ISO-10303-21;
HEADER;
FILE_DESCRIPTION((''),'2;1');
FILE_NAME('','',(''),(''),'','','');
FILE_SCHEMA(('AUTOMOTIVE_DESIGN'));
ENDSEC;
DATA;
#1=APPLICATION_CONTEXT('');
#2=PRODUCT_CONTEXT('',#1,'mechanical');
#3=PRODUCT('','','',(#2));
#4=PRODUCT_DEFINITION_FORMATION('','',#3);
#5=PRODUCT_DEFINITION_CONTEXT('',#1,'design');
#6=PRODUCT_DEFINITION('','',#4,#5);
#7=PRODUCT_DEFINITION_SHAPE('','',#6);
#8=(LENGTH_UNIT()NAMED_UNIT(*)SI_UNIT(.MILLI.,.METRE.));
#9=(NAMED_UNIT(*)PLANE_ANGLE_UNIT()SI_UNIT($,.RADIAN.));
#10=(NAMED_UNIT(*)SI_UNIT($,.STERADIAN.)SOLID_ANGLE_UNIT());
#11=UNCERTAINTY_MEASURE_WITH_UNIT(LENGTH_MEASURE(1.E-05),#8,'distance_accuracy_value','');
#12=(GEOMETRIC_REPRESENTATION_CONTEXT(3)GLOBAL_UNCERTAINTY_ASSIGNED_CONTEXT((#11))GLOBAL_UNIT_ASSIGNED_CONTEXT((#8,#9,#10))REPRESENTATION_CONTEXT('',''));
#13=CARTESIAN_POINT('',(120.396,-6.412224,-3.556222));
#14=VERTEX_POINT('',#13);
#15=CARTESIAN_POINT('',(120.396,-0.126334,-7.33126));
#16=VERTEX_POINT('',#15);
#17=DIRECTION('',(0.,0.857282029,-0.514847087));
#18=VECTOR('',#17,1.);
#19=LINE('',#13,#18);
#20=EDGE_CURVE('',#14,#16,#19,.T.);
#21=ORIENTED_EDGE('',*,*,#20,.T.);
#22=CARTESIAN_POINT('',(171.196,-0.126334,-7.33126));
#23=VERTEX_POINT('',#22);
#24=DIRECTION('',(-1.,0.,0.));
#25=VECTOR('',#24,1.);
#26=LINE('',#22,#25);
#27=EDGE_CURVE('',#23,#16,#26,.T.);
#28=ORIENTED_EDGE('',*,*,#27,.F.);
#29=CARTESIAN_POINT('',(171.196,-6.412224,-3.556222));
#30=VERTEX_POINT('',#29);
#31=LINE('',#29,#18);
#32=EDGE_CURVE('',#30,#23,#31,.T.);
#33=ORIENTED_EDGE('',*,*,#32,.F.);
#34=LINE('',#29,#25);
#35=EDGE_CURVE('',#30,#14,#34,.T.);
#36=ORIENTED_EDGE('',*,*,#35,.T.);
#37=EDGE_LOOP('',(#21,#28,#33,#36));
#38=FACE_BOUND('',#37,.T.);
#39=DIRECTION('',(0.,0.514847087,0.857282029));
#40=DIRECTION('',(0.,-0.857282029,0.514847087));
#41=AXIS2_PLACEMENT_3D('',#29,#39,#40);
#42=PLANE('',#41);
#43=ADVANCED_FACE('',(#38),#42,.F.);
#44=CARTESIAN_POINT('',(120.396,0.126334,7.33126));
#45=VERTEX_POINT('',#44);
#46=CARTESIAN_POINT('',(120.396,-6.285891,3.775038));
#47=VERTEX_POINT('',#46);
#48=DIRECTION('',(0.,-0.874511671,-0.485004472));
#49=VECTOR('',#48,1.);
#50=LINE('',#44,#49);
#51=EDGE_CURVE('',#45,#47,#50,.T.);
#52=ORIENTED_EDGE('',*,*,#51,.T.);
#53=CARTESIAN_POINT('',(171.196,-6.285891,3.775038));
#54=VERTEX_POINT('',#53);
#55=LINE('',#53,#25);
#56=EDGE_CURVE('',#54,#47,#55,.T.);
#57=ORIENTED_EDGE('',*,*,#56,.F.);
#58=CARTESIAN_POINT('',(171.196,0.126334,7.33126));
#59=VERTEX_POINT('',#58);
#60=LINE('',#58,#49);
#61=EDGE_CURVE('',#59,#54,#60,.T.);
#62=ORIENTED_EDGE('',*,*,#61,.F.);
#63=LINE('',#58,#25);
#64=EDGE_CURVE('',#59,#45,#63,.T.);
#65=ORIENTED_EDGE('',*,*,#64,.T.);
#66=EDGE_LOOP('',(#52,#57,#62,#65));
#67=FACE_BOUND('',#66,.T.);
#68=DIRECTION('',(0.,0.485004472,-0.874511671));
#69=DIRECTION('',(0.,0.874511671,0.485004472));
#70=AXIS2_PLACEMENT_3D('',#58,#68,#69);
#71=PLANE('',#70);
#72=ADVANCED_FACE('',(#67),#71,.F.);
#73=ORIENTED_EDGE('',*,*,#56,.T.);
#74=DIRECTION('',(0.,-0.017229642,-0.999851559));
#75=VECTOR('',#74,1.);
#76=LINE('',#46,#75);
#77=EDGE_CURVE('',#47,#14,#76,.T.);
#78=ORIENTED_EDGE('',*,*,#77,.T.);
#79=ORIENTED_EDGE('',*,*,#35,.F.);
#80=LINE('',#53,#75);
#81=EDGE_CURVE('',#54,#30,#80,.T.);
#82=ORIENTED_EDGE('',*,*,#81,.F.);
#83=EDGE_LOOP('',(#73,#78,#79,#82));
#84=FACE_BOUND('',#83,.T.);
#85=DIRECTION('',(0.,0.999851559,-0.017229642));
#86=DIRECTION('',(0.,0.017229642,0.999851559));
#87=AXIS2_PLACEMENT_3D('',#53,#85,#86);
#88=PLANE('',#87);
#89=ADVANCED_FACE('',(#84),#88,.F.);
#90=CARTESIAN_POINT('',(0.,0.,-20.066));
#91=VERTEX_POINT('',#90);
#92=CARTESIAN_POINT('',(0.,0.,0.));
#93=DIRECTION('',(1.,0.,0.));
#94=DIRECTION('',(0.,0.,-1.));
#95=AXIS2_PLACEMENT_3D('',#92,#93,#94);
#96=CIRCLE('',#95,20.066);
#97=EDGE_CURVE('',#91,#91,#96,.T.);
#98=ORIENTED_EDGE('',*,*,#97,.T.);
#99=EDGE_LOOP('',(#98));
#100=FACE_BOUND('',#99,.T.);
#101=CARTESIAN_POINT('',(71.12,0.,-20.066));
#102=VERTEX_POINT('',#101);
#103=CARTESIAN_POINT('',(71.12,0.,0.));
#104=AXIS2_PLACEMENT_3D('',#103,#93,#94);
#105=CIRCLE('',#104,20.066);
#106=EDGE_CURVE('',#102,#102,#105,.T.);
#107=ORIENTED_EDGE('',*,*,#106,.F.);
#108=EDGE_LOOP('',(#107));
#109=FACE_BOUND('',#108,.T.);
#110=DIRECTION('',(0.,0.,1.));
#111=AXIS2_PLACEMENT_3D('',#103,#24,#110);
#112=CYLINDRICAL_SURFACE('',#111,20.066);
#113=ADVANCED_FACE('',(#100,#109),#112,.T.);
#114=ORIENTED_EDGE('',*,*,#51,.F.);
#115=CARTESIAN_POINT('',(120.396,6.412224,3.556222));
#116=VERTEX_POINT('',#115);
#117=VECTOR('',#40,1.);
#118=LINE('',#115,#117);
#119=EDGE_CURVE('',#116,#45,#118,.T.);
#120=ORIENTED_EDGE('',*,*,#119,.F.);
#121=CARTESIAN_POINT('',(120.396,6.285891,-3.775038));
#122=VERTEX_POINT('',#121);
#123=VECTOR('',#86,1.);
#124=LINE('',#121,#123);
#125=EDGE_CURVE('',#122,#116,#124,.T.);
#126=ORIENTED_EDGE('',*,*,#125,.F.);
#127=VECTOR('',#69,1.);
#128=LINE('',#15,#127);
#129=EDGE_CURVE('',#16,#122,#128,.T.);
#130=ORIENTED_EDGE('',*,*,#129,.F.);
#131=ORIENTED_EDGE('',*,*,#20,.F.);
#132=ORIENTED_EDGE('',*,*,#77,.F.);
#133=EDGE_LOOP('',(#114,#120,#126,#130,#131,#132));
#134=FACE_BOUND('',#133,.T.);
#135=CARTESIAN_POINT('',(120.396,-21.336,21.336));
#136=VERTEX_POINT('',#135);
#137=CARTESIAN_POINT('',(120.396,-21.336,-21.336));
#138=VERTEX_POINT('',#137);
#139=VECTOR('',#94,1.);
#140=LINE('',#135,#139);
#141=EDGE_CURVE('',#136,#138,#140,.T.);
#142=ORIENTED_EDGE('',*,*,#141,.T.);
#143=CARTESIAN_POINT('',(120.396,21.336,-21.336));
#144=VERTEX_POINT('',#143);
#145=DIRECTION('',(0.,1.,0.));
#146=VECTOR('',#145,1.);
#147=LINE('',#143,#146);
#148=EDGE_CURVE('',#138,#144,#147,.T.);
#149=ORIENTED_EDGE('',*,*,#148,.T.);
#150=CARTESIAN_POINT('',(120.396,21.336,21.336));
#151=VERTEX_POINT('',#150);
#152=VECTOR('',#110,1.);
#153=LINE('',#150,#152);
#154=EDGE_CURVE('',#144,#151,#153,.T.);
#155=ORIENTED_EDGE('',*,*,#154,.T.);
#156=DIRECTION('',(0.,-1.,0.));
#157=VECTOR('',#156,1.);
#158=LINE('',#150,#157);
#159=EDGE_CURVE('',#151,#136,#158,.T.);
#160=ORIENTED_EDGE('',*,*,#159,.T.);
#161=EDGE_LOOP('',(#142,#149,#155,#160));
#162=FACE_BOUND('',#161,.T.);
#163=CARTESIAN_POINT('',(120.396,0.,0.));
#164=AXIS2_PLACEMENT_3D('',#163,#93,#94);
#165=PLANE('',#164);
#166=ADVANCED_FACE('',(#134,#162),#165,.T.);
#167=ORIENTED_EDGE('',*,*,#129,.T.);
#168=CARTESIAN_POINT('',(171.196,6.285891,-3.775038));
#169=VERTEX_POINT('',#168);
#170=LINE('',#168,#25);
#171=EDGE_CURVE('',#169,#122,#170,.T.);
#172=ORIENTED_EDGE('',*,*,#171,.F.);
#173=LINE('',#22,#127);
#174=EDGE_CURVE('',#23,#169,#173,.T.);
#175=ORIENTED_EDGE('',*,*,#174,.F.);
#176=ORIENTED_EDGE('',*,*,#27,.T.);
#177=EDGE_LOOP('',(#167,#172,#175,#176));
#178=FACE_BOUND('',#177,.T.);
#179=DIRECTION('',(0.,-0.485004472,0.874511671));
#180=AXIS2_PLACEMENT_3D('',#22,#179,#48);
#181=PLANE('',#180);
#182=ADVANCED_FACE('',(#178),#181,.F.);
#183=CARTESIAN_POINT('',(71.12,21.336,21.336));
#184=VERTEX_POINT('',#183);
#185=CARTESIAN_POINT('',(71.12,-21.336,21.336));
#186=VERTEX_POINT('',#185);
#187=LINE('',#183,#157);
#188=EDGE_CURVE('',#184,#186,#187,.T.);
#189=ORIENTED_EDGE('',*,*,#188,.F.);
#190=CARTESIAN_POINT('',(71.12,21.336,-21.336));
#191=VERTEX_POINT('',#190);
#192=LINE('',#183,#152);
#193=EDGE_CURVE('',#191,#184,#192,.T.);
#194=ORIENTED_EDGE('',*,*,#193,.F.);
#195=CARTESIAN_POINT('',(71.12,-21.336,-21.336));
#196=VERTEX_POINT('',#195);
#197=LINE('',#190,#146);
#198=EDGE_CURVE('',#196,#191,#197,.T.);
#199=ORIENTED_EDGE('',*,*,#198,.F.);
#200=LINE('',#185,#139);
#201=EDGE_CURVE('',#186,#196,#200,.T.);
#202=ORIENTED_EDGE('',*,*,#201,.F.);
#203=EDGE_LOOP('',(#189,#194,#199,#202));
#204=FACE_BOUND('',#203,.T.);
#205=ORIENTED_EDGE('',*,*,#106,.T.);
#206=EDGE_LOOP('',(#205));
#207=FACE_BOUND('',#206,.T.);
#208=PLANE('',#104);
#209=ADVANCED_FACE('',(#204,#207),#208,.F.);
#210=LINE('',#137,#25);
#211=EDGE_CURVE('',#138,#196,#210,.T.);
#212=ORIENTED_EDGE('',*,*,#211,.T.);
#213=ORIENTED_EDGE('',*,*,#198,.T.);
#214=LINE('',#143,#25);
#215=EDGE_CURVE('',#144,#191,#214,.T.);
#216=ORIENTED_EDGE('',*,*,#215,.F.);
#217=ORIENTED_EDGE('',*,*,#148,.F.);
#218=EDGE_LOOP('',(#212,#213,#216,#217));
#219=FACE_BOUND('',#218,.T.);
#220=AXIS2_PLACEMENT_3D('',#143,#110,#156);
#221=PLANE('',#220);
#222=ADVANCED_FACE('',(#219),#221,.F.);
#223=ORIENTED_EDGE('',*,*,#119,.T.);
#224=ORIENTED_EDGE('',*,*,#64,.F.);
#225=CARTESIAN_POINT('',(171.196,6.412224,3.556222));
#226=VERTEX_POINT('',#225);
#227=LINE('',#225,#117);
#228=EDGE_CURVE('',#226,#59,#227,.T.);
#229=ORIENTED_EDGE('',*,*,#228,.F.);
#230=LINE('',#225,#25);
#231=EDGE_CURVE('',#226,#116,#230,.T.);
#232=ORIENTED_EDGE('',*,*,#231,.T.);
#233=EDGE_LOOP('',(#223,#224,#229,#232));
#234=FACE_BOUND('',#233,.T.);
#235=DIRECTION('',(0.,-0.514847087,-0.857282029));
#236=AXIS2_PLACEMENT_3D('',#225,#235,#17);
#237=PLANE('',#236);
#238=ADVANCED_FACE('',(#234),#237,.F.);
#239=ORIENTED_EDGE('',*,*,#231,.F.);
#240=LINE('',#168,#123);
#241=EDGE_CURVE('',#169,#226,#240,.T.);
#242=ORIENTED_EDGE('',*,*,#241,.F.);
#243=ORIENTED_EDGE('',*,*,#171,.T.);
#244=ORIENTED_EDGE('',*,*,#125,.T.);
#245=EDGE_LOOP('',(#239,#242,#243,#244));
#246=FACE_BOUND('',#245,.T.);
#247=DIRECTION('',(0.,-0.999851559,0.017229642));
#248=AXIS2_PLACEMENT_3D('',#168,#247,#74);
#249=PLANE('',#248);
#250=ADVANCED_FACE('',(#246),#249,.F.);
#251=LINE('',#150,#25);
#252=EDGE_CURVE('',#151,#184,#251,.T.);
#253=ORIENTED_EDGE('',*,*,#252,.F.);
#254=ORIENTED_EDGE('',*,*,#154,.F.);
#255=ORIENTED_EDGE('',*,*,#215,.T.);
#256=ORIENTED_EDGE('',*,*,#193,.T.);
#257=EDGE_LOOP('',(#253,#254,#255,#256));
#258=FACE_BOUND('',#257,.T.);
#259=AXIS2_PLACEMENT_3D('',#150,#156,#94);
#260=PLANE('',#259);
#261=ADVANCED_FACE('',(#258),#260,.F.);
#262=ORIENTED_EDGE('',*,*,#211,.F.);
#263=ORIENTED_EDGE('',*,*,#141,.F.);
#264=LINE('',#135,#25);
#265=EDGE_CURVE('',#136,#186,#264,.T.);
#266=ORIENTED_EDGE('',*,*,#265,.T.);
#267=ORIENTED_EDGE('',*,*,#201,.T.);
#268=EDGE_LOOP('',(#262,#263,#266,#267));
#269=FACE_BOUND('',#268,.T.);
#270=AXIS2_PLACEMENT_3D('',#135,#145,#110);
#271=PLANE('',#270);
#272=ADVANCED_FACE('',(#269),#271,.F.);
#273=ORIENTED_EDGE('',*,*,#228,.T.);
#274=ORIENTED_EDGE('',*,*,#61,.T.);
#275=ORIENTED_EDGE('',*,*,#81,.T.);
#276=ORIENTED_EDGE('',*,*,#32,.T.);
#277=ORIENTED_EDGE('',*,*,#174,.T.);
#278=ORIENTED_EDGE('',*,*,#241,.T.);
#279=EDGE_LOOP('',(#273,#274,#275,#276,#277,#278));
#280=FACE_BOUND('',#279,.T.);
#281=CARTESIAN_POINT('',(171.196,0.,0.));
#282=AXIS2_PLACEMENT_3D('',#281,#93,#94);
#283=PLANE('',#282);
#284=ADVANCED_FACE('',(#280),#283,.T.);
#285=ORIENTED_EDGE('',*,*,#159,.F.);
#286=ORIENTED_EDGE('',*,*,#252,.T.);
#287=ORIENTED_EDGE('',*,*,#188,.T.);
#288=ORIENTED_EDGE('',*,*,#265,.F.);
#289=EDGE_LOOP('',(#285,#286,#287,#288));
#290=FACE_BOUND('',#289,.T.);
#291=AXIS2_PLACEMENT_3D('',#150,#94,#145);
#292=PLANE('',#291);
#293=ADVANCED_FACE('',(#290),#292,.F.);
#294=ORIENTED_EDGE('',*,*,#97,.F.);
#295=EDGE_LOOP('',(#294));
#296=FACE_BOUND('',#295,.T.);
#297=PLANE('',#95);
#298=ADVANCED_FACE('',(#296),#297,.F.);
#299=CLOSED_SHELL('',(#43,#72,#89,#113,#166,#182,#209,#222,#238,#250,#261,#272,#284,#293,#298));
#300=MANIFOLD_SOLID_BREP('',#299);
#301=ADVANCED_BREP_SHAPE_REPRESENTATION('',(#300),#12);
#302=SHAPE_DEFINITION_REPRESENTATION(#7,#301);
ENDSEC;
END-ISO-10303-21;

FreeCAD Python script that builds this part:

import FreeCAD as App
import Part
import Sketcher
Q = App.Units.Quantity

doc = App.newDocument("Part")
body = doc.addObject("PartDesign::Body", "Body")

sketch1 = body.newObject("Sketcher::SketchObject", "Sketch")
sketch1.AttachmentSupport = (doc.getObject("YZ_Plane"), [""])
sketch1.MapMode = "FlatFace"
sketch1.addGeometry(Part.Circle(App.Vector(0, 0, 0), App.Vector(0, 0, 1), 20), False)
sketch1.addConstraint([
    Sketcher.Constraint("Coincident", 0, 3, -1, 1),
    Sketcher.Constraint("Diameter", 0, Q("1.58 in")),
])
pad1 = body.newObject("PartDesign::Pad", "Pad")
pad1.Profile = sketch1
pad1.Length = Q("2.8 in")

sketch2 = body.newObject("Sketcher::SketchObject", "Sketch001")
sketch2.AttachmentSupport = (doc.getObject("YZ_Plane"), [""])
sketch2.MapMode = "FlatFace"
sketch2.AttachmentOffset = App.Placement(App.Vector(0, 0, 2.8 * 25.4), App.Rotation())
sketch2.addGeometry([
    Part.LineSegment(App.Vector(21, 21, 0), App.Vector(-21, 21, 0)),
    Part.LineSegment(App.Vector(-21, 21, 0), App.Vector(-21, -21, 0)),
    Part.LineSegment(App.Vector(-21, -21, 0), App.Vector(21, -21, 0)),
    Part.LineSegment(App.Vector(21, -21, 0), App.Vector(21, 21, 0)),
], False)
sketch2.addConstraint([
    Sketcher.Constraint("Coincident", 0, 2, 1, 1),
    Sketcher.Constraint("Coincident", 1, 2, 2, 1),
    Sketcher.Constraint("Coincident", 2, 2, 3, 1),
    Sketcher.Constraint("Coincident", 3, 2, 0, 1),
    Sketcher.Constraint("Horizontal", 0),
    Sketcher.Constraint("Vertical", 1),
    Sketcher.Constraint("Horizontal", 2),
    Sketcher.Constraint("Vertical", 3),
    Sketcher.Constraint("Symmetric", 0, 2, 2, 2, -1, 1),
    Sketcher.Constraint("Equal", 2, 1),
    Sketcher.Constraint("DistanceX", 0, 2, 0, 1, Q("1.68 in")),
])
pad2 = body.newObject("PartDesign::Pad", "Pad001")
pad2.Profile = sketch2
pad2.Length = Q("1.94 in")

sketch3 = body.newObject("Sketcher::SketchObject", "Sketch002")
sketch3.AttachmentSupport = (doc.getObject("YZ_Plane"), [""])
sketch3.MapMode = "FlatFace"
sketch3.AttachmentOffset = App.Placement(App.Vector(0, 0, 4.74 * 25.4), App.Rotation())
sketch3.addGeometry([
    Part.LineSegment(App.Vector(-6, -4, 0), App.Vector(0, -7, 0)),
    Part.LineSegment(App.Vector(0, -7, 0), App.Vector(6, -4, 0)),
    Part.LineSegment(App.Vector(6, -4, 0), App.Vector(6, 4, 0)),
    Part.LineSegment(App.Vector(6, 4, 0), App.Vector(0, 7, 0)),
    Part.LineSegment(App.Vector(0, 7, 0), App.Vector(-6, 4, 0)),
    Part.LineSegment(App.Vector(-6, 4, 0), App.Vector(-6, -4, 0)),
], False)
sketch3.addConstraint([
    Sketcher.Constraint("Coincident", 0, 2, 1, 1),
    Sketcher.Constraint("Coincident", 1, 2, 2, 1),
    Sketcher.Constraint("Coincident", 2, 2, 3, 1),
    Sketcher.Constraint("Coincident", 3, 2, 4, 1),
    Sketcher.Constraint("Coincident", 4, 2, 5, 1),
    Sketcher.Constraint("Coincident", 5, 2, 0, 1),
    Sketcher.Constraint("Symmetric", 0, 2, 3, 2, -1, 1),
    Sketcher.Constraint("Symmetric", 1, 2, 4, 2, -1, 1),
    Sketcher.Constraint("Symmetric", 2, 2, 5, 2, -1, 1),
    Sketcher.Constraint("Equal", 0, 1),
    Sketcher.Constraint("Equal", 1, 2),
    Sketcher.Constraint("DistanceY", 1, 2, 3, 2, 11.106298),
    Sketcher.Constraint("Distance", 0, 7.332348),
    Sketcher.Constraint("DistanceY", 0, 2, -1, 1, 7.33126),
    Sketcher.Constraint("DistanceX", -1, 1, 1, 2, 6.285891),
])
pad3 = body.newObject("PartDesign::Pad", "Pad002")
pad3.Profile = sketch3
pad3.Length = Q("2 in")

doc.recompute()
